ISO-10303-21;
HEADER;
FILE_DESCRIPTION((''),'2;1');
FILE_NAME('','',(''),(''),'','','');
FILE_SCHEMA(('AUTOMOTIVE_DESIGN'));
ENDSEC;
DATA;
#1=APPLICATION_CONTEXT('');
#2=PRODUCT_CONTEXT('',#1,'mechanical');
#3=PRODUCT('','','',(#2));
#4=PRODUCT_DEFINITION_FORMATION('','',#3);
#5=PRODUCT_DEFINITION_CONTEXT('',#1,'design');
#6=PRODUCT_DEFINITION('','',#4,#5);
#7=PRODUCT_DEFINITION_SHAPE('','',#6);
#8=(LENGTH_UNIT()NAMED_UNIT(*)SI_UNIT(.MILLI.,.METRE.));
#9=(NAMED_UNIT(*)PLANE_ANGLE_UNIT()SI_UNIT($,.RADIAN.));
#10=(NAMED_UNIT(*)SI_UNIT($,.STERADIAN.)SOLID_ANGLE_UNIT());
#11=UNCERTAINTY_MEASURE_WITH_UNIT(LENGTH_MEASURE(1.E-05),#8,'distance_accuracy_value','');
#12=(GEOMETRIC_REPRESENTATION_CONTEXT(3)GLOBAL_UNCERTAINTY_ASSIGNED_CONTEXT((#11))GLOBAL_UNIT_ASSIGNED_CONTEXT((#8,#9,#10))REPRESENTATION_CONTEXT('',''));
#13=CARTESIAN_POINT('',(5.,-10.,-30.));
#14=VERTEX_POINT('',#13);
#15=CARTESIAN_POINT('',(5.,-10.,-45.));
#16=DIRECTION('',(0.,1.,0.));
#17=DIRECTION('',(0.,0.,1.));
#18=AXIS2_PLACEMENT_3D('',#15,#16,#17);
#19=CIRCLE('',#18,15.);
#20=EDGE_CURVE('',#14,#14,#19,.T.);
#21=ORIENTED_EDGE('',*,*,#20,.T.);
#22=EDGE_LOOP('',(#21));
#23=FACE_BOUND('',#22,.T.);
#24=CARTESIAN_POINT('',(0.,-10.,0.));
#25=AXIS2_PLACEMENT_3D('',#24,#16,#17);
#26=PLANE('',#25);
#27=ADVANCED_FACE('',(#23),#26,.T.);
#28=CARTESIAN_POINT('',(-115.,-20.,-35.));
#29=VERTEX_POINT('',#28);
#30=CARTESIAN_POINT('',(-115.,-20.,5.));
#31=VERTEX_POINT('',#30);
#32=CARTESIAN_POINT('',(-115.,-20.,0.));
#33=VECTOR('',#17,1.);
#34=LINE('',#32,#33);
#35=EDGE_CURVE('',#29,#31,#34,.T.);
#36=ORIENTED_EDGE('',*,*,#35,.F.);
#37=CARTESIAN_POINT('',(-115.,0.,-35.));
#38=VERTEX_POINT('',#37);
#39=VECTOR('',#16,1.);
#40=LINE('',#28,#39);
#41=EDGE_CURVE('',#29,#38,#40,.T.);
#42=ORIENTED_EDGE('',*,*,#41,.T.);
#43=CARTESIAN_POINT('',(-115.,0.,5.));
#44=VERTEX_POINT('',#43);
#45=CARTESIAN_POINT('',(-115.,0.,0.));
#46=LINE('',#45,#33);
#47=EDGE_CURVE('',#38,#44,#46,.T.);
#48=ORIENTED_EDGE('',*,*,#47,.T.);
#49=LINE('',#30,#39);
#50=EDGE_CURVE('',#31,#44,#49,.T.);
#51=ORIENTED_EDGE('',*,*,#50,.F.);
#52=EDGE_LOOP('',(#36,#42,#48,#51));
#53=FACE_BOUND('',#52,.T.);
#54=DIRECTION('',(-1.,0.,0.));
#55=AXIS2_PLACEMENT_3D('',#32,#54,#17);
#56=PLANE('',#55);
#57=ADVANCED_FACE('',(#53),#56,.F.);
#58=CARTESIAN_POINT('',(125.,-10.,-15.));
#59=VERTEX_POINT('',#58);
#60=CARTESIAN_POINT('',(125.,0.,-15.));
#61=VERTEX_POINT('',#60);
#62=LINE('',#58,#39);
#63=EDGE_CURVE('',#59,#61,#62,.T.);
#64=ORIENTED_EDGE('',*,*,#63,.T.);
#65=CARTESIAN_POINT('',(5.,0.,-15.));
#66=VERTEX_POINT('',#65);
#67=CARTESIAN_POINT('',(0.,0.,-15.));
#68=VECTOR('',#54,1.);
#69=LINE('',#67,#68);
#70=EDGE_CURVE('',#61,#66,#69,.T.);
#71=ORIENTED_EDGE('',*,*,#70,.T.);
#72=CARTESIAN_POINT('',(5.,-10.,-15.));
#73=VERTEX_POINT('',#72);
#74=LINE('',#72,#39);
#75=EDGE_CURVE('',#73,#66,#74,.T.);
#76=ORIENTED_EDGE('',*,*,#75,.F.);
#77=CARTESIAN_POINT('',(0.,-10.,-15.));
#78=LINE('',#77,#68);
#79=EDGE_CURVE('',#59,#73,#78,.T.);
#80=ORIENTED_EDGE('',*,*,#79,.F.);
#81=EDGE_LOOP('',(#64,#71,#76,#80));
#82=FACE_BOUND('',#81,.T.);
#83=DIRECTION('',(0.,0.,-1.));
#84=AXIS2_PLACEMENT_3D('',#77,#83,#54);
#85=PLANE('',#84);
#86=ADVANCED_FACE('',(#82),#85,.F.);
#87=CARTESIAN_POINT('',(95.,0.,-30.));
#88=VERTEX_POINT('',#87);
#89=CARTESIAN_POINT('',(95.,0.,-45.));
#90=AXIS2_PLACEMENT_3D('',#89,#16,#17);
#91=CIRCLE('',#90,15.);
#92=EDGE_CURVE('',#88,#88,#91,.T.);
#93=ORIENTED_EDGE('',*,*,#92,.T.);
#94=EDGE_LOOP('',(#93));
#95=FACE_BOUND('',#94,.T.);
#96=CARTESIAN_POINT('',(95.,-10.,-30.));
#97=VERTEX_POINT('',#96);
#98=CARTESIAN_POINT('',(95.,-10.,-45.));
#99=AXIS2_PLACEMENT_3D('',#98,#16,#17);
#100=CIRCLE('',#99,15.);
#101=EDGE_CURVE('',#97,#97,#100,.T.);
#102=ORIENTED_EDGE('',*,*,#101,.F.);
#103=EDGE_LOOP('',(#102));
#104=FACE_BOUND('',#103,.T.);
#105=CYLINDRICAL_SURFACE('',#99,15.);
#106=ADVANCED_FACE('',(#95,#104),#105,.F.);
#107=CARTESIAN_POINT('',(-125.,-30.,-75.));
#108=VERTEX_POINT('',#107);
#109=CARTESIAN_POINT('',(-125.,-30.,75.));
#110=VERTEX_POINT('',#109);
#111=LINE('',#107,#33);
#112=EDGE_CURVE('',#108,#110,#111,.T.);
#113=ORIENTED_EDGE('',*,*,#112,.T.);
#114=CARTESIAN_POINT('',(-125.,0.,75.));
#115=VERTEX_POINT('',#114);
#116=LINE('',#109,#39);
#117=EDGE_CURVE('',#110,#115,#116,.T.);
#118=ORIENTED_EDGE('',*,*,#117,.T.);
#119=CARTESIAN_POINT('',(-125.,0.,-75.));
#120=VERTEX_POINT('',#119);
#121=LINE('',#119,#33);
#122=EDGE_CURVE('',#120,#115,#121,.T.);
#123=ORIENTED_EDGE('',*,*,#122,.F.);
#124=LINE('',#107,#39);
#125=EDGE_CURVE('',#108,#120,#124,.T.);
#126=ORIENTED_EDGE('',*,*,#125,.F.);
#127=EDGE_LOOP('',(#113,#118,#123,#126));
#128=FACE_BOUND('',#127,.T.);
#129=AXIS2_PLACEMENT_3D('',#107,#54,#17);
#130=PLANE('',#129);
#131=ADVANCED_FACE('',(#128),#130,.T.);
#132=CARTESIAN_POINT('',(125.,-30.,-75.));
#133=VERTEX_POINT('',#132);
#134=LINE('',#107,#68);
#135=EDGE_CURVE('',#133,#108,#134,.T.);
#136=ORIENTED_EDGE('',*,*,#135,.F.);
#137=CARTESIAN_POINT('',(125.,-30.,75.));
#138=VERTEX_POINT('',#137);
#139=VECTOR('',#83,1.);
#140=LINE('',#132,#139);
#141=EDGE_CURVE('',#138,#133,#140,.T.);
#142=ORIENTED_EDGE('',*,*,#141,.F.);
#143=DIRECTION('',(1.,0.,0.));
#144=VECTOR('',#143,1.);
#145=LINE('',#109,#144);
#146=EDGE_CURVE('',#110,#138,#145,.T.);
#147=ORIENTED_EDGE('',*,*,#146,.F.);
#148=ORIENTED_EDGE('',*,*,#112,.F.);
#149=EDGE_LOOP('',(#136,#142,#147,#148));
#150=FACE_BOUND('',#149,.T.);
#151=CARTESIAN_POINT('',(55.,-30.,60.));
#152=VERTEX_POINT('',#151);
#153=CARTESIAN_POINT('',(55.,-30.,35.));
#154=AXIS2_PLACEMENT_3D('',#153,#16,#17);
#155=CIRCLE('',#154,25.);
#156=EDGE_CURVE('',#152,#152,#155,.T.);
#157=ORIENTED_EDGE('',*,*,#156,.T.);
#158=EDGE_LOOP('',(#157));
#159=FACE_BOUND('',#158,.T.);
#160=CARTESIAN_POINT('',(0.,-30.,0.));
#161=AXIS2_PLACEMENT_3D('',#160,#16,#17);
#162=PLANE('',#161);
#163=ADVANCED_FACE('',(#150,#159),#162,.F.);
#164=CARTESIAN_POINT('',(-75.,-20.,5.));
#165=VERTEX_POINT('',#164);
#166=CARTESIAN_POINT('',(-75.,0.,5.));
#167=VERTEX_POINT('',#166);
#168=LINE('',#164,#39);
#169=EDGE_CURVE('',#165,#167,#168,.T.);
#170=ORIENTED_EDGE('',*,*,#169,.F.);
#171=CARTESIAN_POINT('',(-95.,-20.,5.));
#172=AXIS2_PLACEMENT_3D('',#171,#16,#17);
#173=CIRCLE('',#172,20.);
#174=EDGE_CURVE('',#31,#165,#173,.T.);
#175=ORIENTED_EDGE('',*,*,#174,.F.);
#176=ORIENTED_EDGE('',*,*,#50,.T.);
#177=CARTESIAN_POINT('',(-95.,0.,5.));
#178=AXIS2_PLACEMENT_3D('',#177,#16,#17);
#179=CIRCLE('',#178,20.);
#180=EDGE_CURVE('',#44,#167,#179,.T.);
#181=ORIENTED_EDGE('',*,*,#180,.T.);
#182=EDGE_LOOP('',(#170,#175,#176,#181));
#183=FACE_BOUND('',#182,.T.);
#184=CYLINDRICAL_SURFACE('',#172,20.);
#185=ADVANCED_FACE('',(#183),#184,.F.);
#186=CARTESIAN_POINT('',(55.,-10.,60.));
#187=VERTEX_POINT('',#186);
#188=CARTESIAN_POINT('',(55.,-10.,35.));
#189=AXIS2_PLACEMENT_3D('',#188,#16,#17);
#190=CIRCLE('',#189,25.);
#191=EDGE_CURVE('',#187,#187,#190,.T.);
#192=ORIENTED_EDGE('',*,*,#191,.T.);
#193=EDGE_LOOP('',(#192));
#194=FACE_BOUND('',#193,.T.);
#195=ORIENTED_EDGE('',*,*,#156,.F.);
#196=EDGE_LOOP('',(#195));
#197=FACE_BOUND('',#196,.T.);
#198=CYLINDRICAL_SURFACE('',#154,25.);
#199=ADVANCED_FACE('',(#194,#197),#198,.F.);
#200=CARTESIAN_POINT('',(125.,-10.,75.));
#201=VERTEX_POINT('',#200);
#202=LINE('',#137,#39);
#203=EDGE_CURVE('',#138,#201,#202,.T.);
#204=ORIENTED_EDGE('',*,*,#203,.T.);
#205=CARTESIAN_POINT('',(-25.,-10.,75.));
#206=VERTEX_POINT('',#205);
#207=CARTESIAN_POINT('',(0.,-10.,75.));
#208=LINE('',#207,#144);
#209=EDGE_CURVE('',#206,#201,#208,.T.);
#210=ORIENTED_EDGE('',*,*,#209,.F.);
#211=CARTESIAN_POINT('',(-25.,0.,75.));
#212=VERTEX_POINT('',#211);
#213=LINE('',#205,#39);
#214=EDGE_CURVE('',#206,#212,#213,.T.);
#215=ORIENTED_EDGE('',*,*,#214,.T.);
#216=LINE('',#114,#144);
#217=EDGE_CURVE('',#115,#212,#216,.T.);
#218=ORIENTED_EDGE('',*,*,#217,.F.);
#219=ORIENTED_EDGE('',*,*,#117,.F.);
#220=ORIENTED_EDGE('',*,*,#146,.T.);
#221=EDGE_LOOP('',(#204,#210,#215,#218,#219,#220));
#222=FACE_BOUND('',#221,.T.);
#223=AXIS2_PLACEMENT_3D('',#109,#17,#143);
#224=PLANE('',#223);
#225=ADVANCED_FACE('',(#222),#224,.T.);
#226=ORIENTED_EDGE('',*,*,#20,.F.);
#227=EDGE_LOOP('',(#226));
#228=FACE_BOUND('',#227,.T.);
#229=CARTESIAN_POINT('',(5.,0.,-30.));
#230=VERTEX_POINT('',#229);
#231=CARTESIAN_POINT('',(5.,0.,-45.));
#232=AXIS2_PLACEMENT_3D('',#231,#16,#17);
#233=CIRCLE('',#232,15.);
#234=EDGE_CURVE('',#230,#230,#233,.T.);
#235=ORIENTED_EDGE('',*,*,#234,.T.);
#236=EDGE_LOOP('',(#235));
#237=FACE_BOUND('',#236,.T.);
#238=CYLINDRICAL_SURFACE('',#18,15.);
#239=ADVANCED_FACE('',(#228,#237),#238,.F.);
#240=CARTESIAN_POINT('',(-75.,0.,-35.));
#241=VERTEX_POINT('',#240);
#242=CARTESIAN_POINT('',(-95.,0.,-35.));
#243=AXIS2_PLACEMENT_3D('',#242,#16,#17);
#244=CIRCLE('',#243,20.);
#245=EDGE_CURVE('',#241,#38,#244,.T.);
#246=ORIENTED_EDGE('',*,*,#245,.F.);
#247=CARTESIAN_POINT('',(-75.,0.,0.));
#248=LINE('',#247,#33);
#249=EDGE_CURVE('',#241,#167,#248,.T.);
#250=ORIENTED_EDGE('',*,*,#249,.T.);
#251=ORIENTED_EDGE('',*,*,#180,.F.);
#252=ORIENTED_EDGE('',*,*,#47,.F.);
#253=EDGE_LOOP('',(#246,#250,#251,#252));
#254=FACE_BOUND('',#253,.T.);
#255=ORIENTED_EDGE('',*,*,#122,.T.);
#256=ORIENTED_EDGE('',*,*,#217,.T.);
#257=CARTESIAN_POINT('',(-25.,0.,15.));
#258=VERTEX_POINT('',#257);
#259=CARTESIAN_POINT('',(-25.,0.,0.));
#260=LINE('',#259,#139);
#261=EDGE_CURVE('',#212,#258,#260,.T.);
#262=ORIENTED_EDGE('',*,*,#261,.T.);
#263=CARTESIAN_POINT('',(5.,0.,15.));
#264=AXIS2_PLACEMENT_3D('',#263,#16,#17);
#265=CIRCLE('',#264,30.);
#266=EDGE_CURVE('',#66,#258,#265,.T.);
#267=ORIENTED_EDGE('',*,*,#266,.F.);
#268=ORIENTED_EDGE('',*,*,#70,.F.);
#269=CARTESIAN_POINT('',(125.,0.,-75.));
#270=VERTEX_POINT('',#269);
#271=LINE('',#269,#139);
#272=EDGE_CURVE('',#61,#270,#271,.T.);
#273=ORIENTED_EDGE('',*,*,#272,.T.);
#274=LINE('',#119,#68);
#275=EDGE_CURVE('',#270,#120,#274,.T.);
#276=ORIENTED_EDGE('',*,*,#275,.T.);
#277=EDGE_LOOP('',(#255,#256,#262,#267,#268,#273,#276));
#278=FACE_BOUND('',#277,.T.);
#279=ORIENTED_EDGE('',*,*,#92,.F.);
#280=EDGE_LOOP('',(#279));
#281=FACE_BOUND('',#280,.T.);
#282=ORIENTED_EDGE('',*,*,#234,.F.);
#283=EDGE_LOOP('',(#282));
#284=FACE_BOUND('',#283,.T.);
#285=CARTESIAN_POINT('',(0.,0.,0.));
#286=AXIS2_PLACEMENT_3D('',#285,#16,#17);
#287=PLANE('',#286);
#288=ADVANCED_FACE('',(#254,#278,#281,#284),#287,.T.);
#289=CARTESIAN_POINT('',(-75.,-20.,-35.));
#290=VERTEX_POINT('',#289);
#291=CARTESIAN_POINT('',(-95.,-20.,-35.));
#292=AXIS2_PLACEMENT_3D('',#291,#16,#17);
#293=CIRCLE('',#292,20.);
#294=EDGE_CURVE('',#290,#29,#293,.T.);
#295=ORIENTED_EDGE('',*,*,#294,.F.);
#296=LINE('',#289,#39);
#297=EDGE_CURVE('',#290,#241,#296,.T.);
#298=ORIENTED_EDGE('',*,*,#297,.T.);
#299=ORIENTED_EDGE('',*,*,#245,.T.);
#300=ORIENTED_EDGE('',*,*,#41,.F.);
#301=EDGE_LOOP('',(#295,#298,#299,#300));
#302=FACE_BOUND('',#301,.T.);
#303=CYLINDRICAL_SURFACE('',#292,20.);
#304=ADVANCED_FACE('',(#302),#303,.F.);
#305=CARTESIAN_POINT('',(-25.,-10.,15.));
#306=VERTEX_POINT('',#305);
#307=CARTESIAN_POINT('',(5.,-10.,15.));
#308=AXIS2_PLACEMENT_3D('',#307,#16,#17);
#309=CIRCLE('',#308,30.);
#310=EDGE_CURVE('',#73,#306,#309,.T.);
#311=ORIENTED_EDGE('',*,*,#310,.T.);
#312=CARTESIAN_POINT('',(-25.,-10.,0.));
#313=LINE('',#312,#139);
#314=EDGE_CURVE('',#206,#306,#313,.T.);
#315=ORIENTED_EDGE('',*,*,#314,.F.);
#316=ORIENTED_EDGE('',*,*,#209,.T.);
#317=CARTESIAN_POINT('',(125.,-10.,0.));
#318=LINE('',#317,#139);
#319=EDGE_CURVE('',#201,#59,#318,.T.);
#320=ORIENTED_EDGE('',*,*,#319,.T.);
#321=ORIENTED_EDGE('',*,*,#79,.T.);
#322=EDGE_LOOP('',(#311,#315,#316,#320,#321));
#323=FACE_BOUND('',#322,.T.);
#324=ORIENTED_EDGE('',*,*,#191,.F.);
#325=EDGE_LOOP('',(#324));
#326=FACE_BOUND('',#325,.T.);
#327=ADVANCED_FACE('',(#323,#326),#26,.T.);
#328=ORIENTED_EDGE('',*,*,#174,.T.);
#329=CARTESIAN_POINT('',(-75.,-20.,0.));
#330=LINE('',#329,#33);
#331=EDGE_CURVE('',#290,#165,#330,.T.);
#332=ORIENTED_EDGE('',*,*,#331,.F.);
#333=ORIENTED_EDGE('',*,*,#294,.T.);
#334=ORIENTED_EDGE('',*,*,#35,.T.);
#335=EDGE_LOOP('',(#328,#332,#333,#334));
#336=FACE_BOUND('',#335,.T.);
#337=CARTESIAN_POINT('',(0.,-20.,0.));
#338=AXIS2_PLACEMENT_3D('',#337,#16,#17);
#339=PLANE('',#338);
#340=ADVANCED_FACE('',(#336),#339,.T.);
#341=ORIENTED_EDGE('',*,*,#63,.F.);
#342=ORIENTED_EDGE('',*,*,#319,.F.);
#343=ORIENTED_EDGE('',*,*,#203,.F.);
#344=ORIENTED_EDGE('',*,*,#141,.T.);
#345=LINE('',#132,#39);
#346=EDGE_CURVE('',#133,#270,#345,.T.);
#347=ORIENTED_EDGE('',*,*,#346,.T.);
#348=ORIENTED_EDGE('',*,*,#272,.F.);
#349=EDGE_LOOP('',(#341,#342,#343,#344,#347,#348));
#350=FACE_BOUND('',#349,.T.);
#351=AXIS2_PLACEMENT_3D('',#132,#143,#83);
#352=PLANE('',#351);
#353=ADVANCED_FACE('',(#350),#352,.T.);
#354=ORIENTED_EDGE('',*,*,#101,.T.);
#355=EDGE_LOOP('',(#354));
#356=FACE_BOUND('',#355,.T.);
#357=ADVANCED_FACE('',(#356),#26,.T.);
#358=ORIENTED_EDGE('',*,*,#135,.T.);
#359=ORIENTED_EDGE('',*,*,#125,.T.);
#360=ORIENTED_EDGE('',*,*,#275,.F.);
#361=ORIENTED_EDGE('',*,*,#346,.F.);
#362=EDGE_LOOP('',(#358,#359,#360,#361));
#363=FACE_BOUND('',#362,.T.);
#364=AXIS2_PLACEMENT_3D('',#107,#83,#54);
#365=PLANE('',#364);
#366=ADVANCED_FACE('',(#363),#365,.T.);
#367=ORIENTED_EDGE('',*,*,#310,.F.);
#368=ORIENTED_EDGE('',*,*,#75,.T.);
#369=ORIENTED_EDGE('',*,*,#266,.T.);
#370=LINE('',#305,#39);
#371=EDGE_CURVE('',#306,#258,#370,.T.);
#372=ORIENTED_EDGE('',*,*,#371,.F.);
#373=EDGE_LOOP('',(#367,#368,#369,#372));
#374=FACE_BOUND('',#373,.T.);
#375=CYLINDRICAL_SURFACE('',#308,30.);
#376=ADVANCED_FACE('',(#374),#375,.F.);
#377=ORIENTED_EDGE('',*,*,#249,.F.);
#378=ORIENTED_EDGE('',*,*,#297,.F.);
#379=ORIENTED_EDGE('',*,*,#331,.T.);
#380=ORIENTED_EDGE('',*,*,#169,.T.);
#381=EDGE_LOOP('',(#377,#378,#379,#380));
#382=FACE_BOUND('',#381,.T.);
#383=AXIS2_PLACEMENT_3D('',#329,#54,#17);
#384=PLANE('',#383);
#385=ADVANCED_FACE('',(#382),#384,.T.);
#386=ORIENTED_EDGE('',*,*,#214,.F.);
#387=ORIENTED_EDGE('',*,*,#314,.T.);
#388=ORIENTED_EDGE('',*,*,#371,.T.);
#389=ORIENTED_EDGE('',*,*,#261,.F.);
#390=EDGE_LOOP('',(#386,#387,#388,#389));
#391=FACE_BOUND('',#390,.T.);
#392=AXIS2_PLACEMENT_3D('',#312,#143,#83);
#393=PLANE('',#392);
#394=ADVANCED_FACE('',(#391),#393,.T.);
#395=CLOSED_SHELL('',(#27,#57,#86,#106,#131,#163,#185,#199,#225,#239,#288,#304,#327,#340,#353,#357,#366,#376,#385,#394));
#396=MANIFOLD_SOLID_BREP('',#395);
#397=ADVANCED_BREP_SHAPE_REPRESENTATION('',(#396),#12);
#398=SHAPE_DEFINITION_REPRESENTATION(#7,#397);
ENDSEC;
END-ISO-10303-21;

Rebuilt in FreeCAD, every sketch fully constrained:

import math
import FreeCAD as App
import Part
import Sketcher
from FreeCAD import Vector
Q = App.Units.Quantity


def add_polygon(sketch, points):
    """Adds a closed chain of lines whose ends are joined by coincident constraints."""
    first, n = sketch.GeometryCount, len(points)
    for a, b in zip(points, points[1:] + points[:1]):
        sketch.addGeometry(Part.LineSegment(App.Vector(*a, 0), App.Vector(*b, 0)), False)
    for i in range(n):
        sketch.addConstraint(Sketcher.Constraint("Coincident", first + i, 2, first + (i + 1) % n, 1))

doc = App.newDocument("Part")
body = doc.addObject("PartDesign::Body", "Body")

# Sketch on XZ plane
sketch1 = doc.addObject("Sketcher::SketchObject", "Sketch")
body.addObject(sketch1)
sketch1.AttachmentSupport = (doc.XZ_Plane, [""])
sketch1.MapMode = "FlatFace"
add_polygon(sketch1, [(-125, -75), (-125, 75), (125, 75), (125, -75)])  # lines 0-3
sketch1.addConstraint([
    Sketcher.Constraint("Vertical", 0),
    Sketcher.Constraint("Horizontal", 1),
    Sketcher.Constraint("Vertical", 2),
    Sketcher.Constraint("Horizontal", 3),
    Sketcher.Constraint("Symmetric", 0, 2, 2, 2, -1, 1),
    Sketcher.Constraint("DistanceX", 1, 1, 1, 2, Q("250 mm")),
    Sketcher.Constraint("DistanceY", 0, 1, 0, 2, Q("150 mm")),
])
pad1 = doc.addObject("PartDesign::Pad", "Pad")
body.addObject(pad1)
pad1.Profile = sketch1
pad1.Length = 30

# Sketch on XZ plane
sketch2 = doc.addObject("Sketcher::SketchObject", "Sketch001")
body.addObject(sketch2)
sketch2.AttachmentSupport = (doc.XZ_Plane, [""])
sketch2.MapMode = "FlatFace"
sketch2.addGeometry([
    Part.LineSegment(Vector(-75, 5, 0), Vector(-75, -35, 0)),
    Part.ArcOfCircle(Part.Circle(Vector(-95, -35, 0), Vector(0, 0, 1), 20), math.radians(180), math.radians(360)),
    Part.LineSegment(Vector(-115, -35, 0), Vector(-115, 5, 0)),
    Part.ArcOfCircle(Part.Circle(Vector(-95, 5, 0), Vector(0, 0, 1), 20), math.radians(0), math.radians(180)),
], False)
sketch2.addConstraint([
    Sketcher.Constraint("Tangent", 0, 2, 1, 2),
    Sketcher.Constraint("Tangent", 1, 1, 2, 1),
    Sketcher.Constraint("Tangent", 2, 2, 3, 2),
    Sketcher.Constraint("Tangent", 3, 1, 0, 1),
    Sketcher.Constraint("Vertical", 0),
    Sketcher.Constraint("Vertical", 2),
    Sketcher.Constraint("Radius", 1, Q("20 mm")),
    Sketcher.Constraint("DistanceY", 0, 2, 0, 1, Q("40 mm")),
    Sketcher.Constraint("DistanceX", 1, 3, -1, 1, Q("95 mm")),
    Sketcher.Constraint("DistanceY", 1, 3, -1, 1, Q("35 mm")),
])
pocket1 = doc.addObject("PartDesign::Pocket", "Pocket")
body.addObject(pocket1)
pocket1.Profile = sketch2
pocket1.Length = 20
pocket1.Reversed = True

# Sketch on XZ plane
sketch3 = doc.addObject("Sketcher::SketchObject", "Sketch002")
body.addObject(sketch3)
sketch3.AttachmentSupport = (doc.XZ_Plane, [""])
sketch3.MapMode = "FlatFace"
sketch3.addGeometry([
    Part.Circle(Vector(5, -45, 0), Vector(0, 0, 1), 15),
    Part.Circle(Vector(95, -45, 0), Vector(0, 0, 1), 15),
], False)
sketch3.addConstraint([
    Sketcher.Constraint("Equal", 0, 1),
    Sketcher.Constraint("Horizontal", 0, 3, 1, 3),
    Sketcher.Constraint("Diameter", 0, Q("30 mm")),
    Sketcher.Constraint("DistanceX", -1, 1, 0, 3, Q("5 mm")),
    Sketcher.Constraint("DistanceY", 0, 3, -1, 1, Q("45 mm")),
    Sketcher.Constraint("DistanceX", -1, 1, 1, 3, Q("95 mm")),
])
pocket2 = doc.addObject("PartDesign::Pocket", "Pocket001")
body.addObject(pocket2)
pocket2.Profile = sketch3
pocket2.Length = 10
pocket2.Reversed = True

# Sketch on XZ plane
sketch4 = doc.addObject("Sketcher::SketchObject", "Sketch003")
body.addObject(sketch4)
sketch4.AttachmentSupport = (doc.XZ_Plane, [""])
sketch4.MapMode = "FlatFace"
sketch4.addGeometry(Part.Circle(Vector(55, 35, 0), Vector(0, 0, 1), 25), False)
sketch4.addConstraint([
    Sketcher.Constraint("Diameter", 0, Q("50 mm")),
    Sketcher.Constraint("DistanceX", -1, 1, 0, 3, Q("55 mm")),
    Sketcher.Constraint("DistanceY", -1, 1, 0, 3, Q("35 mm")),
])
pocket3 = doc.addObject("PartDesign::Pocket", "Pocket002")
body.addObject(pocket3)
pocket3.Profile = sketch4
pocket3.Type = "ThroughAll"
pocket3.Reversed = True

# Sketch on XZ plane
sketch5 = doc.addObject("Sketcher::SketchObject", "Sketch004")
body.addObject(sketch5)
sketch5.AttachmentSupport = (doc.XZ_Plane, [""])
sketch5.MapMode = "FlatFace"
sketch5.addGeometry([
    Part.LineSegment(Vector(-25, 75, 0), Vector(125, 75, 0)),  # 0
    Part.LineSegment(Vector(125, 75, 0), Vector(125, -15, 0)),  # 1
    Part.LineSegment(Vector(125, -15, 0), Vector(5, -15, 0)),  # 2
    Part.ArcOfCircle(Part.Circle(Vector(5, 15, 0), Vector(0, 0, 1), 30), math.radians(180), math.radians(270)),  # 3
    Part.LineSegment(Vector(-25, 15, 0), Vector(-25, 75, 0)),  # 4
    Part.Circle(Vector(55, 35, 0), Vector(0, 0, 1), 25),  # 5
], False)
sketch5.addConstraint([
    Sketcher.Constraint("Coincident", 0, 2, 1, 1),
    Sketcher.Constraint("Coincident", 1, 2, 2, 1),
    Sketcher.Constraint("Tangent", 2, 2, 3, 2),
    Sketcher.Constraint("Tangent", 3, 1, 4, 1),
    Sketcher.Constraint("Coincident", 4, 2, 0, 1),
    Sketcher.Constraint("Horizontal", 0),
    Sketcher.Constraint("Vertical", 1),
    Sketcher.Constraint("Horizontal", 2),
    Sketcher.Constraint("Vertical", 4),
    Sketcher.Constraint("Diameter", 5, Q("50 mm")),
    Sketcher.Constraint("Radius", 3, Q("30 mm")),
    Sketcher.Constraint("DistanceX", 0, 1, 0, 2, Q("150 mm")),
    Sketcher.Constraint("DistanceY", 1, 2, 1, 1, Q("90 mm")),
    Sketcher.Constraint("DistanceX", -1, 1, 3, 3, Q("5 mm")),
    Sketcher.Constraint("DistanceY", -1, 1, 3, 3, Q("15 mm")),
    Sketcher.Constraint("DistanceX", -1, 1, 5, 3, Q("55 mm")),
    Sketcher.Constraint("DistanceY", -1, 1, 5, 3, Q("35 mm")),
])
pocket4 = doc.addObject("PartDesign::Pocket", "Pocket003")
body.addObject(pocket4)
pocket4.Profile = sketch5
pocket4.Length = 10
pocket4.Reversed = True

doc.recompute()
